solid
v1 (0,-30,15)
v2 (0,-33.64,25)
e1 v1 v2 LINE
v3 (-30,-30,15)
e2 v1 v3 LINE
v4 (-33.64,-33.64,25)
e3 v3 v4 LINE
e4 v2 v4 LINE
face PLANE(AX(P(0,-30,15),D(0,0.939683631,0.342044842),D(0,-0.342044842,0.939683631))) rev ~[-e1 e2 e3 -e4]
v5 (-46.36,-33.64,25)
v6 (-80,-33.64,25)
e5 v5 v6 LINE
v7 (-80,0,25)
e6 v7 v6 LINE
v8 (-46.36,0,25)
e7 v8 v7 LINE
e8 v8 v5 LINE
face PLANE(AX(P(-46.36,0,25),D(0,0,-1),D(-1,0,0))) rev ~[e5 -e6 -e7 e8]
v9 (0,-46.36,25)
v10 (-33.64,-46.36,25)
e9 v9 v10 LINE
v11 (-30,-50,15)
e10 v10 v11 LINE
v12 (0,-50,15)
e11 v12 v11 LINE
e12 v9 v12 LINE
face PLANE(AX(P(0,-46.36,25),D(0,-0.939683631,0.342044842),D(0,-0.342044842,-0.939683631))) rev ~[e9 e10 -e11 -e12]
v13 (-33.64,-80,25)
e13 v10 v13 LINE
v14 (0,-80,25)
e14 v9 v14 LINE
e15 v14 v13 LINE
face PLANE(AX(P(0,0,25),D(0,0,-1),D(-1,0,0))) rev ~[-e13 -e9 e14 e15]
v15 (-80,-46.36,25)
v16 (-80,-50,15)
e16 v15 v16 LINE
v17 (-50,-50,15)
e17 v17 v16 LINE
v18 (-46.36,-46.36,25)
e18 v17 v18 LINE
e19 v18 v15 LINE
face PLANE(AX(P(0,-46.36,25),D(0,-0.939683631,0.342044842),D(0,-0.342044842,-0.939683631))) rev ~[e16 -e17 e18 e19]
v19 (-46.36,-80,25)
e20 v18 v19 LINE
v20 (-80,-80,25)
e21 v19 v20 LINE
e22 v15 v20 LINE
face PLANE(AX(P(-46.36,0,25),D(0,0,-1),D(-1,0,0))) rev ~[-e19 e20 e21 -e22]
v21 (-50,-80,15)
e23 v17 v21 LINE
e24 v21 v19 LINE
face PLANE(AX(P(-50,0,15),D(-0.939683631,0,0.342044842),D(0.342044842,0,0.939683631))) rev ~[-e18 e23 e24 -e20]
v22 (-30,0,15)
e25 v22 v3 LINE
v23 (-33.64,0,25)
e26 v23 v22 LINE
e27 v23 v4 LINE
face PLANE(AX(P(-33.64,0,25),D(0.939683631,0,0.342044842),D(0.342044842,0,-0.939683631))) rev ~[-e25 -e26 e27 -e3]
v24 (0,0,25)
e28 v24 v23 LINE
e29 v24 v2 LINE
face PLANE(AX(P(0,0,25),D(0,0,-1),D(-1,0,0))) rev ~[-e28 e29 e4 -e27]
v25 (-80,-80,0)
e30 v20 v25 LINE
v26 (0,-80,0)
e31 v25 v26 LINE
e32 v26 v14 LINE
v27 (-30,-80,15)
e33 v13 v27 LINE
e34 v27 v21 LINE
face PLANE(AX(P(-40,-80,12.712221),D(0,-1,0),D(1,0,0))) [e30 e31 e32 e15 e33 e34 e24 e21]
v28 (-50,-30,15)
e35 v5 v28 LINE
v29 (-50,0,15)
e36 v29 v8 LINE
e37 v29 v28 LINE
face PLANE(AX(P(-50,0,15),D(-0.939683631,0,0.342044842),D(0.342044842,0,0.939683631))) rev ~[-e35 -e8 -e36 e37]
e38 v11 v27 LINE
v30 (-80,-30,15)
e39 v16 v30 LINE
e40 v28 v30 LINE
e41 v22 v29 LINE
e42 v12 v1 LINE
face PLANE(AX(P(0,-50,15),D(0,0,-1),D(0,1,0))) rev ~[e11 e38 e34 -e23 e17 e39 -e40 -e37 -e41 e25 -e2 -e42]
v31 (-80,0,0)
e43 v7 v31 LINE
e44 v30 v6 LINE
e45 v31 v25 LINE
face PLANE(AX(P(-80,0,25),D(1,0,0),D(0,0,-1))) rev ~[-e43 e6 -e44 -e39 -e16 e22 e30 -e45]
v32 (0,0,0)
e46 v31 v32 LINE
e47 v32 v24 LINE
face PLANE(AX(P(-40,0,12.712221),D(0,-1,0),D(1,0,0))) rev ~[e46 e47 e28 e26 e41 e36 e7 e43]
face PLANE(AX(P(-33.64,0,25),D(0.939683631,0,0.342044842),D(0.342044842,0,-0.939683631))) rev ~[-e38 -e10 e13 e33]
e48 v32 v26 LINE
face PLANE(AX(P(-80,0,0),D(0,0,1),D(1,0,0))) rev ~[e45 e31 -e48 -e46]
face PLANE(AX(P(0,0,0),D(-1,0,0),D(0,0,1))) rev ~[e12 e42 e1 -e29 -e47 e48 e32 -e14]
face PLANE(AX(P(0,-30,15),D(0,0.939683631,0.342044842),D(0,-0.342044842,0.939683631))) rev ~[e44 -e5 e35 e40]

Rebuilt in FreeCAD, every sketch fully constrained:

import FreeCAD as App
import Part
import Sketcher
from FreeCAD import Vector
Q = App.Units.Quantity


def add_polygon(sketch, points):
    """Adds a closed chain of lines whose ends are joined by coincident constraints."""
    first, n = sketch.GeometryCount, len(points)
    for a, b in zip(points, points[1:] + points[:1]):
        sketch.addGeometry(Part.LineSegment(App.Vector(*a, 0), App.Vector(*b, 0)), False)
    for i in range(n):
        sketch.addConstraint(Sketcher.Constraint("Coincident", first + i, 2, first + (i + 1) % n, 1))

doc = App.newDocument("Part")
body = doc.addObject("PartDesign::Body", "Body")

# Sketch on XZ plane
sketch1 = body.newObject("Sketcher::SketchObject", "Sketch")
sketch1.AttachmentSupport = (doc.getObject("XZ_Plane"), [""])
sketch1.MapMode = "FlatFace"
add_polygon(sketch1, [(-80, 0), (0, 0), (0, 25), (-34, 25), (-30, 15), (-50, 15), (-46, 25), (-80, 25)])  # lines 0-7
sketch1.addConstraint(Sketcher.Constraint("Horizontal", 0))
sketch1.addConstraint(Sketcher.Constraint("Vertical", 1))
sketch1.addConstraint(Sketcher.Constraint("Horizontal", 2))
sketch1.addConstraint(Sketcher.Constraint("Horizontal", 4))
sketch1.addConstraint(Sketcher.Constraint("Horizontal", 6))
sketch1.addConstraint(Sketcher.Constraint("Vertical", 7))
sketch1.addConstraint(Sketcher.Constraint("Coincident", 0, 2, -1, 1))
sketch1.addConstraint(Sketcher.Constraint("Horizontal", 2, 2, 5, 2))
sketch1.addConstraint(Sketcher.Constraint("Equal", 2, 6))
sketch1.addConstraint(Sketcher.Constraint("Equal", 3, 5))
sketch1.addConstraint(Sketcher.Constraint("DistanceX", 0, 1, 0, 2, Q("80 mm")))
sketch1.addConstraint(Sketcher.Constraint("DistanceX", 4, 2, 4, 1, Q("20 mm")))
sketch1.addConstraint(Sketcher.Constraint("DistanceY", 1, 1, 1, 2, Q("25 mm")))
sketch1.addConstraint(Sketcher.Constraint("DistanceY", -1, 1, 3, 2, Q("15 mm")))
sketch1.addConstraint(Sketcher.Constraint("DistanceX", 2, 2, 2, 1, Q("33.64 mm")))
pad1 = body.newObject("PartDesign::Pad", "Pad")
pad1.Profile = sketch1
pad1.Length = 80

# Sketch on YZ plane
sketch2 = body.newObject("Sketcher::SketchObject", "Sketch001")
sketch2.AttachmentSupport = (doc.getObject("YZ_Plane"), [""])
sketch2.MapMode = "FlatFace"
add_polygon(sketch2, [(-50, 15), (-30, 15), (-34, 25), (-46, 25)])  # lines 0-3
sketch2.addConstraint(Sketcher.Constraint("Horizontal", 0))
sketch2.addConstraint(Sketcher.Constraint("Horizontal", 2))
sketch2.addConstraint(Sketcher.Constraint("Equal", 1, 3))
sketch2.addConstraint(Sketcher.Constraint("DistanceX", 0, 1, 0, 2, Q("20 mm")))
sketch2.addConstraint(Sketcher.Constraint("DistanceX", 0, 2, -1, 1, Q("30 mm")))
sketch2.addConstraint(Sketcher.Constraint("DistanceY", -1, 1, 0, 2, Q("15 mm")))
sketch2.addConstraint(Sketcher.Constraint("DistanceY", -1, 1, 1, 2, Q("25 mm")))
sketch2.addConstraint(Sketcher.Constraint("DistanceX", 2, 2, 2, 1, Q("12.72 mm")))
pocket1 = body.newObject("PartDesign::Pocket", "Pocket")
pocket1.Profile = sketch2
pocket1.Length = 80

doc.recompute()
